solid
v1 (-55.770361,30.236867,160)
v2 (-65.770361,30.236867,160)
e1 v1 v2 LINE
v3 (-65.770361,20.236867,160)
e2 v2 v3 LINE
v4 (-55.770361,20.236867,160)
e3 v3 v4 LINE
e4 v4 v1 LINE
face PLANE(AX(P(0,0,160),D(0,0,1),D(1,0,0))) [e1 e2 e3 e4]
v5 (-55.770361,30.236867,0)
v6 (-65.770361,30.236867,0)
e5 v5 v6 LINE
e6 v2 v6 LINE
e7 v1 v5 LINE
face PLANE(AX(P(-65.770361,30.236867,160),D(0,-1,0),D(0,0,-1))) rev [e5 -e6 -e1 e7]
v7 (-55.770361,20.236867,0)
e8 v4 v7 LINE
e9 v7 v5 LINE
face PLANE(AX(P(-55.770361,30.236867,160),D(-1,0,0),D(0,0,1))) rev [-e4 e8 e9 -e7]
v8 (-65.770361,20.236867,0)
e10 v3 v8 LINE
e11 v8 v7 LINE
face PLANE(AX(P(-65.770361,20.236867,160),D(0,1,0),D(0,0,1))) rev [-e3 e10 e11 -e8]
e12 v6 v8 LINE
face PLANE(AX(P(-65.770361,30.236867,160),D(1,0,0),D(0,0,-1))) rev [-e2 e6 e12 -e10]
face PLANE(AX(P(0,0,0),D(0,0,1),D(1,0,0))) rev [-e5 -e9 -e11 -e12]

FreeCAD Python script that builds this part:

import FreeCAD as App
import Part
import Sketcher

V = App.Vector
Q = App.Units.Quantity


def add_polygon(sketch, points):
    """Adds a closed chain of lines whose ends are joined by coincident constraints."""
    first, n = sketch.GeometryCount, len(points)
    for a, b in zip(points, points[1:] + points[:1]):
        sketch.addGeometry(Part.LineSegment(App.Vector(*a, 0), App.Vector(*b, 0)), False)
    for i in range(n):
        sketch.addConstraint(Sketcher.Constraint("Coincident", first + i, 2, first + (i + 1) % n, 1))

doc = App.newDocument("Part")
body = doc.addObject("PartDesign::Body", "Body")

# Sketch on XY plane
sketch1 = doc.addObject("Sketcher::SketchObject", "Sketch")
body.addObject(sketch1)
sketch1.AttachmentSupport = (doc.XY_Plane, [""])
sketch1.MapMode = "FlatFace"
add_polygon(sketch1, [(-66, 30), (-66, 20), (-56, 20), (-56, 30)])  # lines 0-3
sketch1.addConstraint([
    Sketcher.Constraint("Vertical", 0),
    Sketcher.Constraint("Horizontal", 1),
    Sketcher.Constraint("Vertical", 2),
    Sketcher.Constraint("Horizontal", 3),
    Sketcher.Constraint("Equal", 3, 0),
    Sketcher.Constraint("DistanceX", 1, 1, 1, 2, Q("10 mm")),
    Sketcher.Constraint("DistanceX", 0, 2, -1, 1, Q("65.770361 mm")),
    Sketcher.Constraint("DistanceY", -1, 1, 0, 2, Q("20.236867 mm")),
])
pad1 = doc.addObject("PartDesign::Pad", "Pad")
body.addObject(pad1)
pad1.Profile = sketch1
pad1.Length = 160

doc.recompute()
